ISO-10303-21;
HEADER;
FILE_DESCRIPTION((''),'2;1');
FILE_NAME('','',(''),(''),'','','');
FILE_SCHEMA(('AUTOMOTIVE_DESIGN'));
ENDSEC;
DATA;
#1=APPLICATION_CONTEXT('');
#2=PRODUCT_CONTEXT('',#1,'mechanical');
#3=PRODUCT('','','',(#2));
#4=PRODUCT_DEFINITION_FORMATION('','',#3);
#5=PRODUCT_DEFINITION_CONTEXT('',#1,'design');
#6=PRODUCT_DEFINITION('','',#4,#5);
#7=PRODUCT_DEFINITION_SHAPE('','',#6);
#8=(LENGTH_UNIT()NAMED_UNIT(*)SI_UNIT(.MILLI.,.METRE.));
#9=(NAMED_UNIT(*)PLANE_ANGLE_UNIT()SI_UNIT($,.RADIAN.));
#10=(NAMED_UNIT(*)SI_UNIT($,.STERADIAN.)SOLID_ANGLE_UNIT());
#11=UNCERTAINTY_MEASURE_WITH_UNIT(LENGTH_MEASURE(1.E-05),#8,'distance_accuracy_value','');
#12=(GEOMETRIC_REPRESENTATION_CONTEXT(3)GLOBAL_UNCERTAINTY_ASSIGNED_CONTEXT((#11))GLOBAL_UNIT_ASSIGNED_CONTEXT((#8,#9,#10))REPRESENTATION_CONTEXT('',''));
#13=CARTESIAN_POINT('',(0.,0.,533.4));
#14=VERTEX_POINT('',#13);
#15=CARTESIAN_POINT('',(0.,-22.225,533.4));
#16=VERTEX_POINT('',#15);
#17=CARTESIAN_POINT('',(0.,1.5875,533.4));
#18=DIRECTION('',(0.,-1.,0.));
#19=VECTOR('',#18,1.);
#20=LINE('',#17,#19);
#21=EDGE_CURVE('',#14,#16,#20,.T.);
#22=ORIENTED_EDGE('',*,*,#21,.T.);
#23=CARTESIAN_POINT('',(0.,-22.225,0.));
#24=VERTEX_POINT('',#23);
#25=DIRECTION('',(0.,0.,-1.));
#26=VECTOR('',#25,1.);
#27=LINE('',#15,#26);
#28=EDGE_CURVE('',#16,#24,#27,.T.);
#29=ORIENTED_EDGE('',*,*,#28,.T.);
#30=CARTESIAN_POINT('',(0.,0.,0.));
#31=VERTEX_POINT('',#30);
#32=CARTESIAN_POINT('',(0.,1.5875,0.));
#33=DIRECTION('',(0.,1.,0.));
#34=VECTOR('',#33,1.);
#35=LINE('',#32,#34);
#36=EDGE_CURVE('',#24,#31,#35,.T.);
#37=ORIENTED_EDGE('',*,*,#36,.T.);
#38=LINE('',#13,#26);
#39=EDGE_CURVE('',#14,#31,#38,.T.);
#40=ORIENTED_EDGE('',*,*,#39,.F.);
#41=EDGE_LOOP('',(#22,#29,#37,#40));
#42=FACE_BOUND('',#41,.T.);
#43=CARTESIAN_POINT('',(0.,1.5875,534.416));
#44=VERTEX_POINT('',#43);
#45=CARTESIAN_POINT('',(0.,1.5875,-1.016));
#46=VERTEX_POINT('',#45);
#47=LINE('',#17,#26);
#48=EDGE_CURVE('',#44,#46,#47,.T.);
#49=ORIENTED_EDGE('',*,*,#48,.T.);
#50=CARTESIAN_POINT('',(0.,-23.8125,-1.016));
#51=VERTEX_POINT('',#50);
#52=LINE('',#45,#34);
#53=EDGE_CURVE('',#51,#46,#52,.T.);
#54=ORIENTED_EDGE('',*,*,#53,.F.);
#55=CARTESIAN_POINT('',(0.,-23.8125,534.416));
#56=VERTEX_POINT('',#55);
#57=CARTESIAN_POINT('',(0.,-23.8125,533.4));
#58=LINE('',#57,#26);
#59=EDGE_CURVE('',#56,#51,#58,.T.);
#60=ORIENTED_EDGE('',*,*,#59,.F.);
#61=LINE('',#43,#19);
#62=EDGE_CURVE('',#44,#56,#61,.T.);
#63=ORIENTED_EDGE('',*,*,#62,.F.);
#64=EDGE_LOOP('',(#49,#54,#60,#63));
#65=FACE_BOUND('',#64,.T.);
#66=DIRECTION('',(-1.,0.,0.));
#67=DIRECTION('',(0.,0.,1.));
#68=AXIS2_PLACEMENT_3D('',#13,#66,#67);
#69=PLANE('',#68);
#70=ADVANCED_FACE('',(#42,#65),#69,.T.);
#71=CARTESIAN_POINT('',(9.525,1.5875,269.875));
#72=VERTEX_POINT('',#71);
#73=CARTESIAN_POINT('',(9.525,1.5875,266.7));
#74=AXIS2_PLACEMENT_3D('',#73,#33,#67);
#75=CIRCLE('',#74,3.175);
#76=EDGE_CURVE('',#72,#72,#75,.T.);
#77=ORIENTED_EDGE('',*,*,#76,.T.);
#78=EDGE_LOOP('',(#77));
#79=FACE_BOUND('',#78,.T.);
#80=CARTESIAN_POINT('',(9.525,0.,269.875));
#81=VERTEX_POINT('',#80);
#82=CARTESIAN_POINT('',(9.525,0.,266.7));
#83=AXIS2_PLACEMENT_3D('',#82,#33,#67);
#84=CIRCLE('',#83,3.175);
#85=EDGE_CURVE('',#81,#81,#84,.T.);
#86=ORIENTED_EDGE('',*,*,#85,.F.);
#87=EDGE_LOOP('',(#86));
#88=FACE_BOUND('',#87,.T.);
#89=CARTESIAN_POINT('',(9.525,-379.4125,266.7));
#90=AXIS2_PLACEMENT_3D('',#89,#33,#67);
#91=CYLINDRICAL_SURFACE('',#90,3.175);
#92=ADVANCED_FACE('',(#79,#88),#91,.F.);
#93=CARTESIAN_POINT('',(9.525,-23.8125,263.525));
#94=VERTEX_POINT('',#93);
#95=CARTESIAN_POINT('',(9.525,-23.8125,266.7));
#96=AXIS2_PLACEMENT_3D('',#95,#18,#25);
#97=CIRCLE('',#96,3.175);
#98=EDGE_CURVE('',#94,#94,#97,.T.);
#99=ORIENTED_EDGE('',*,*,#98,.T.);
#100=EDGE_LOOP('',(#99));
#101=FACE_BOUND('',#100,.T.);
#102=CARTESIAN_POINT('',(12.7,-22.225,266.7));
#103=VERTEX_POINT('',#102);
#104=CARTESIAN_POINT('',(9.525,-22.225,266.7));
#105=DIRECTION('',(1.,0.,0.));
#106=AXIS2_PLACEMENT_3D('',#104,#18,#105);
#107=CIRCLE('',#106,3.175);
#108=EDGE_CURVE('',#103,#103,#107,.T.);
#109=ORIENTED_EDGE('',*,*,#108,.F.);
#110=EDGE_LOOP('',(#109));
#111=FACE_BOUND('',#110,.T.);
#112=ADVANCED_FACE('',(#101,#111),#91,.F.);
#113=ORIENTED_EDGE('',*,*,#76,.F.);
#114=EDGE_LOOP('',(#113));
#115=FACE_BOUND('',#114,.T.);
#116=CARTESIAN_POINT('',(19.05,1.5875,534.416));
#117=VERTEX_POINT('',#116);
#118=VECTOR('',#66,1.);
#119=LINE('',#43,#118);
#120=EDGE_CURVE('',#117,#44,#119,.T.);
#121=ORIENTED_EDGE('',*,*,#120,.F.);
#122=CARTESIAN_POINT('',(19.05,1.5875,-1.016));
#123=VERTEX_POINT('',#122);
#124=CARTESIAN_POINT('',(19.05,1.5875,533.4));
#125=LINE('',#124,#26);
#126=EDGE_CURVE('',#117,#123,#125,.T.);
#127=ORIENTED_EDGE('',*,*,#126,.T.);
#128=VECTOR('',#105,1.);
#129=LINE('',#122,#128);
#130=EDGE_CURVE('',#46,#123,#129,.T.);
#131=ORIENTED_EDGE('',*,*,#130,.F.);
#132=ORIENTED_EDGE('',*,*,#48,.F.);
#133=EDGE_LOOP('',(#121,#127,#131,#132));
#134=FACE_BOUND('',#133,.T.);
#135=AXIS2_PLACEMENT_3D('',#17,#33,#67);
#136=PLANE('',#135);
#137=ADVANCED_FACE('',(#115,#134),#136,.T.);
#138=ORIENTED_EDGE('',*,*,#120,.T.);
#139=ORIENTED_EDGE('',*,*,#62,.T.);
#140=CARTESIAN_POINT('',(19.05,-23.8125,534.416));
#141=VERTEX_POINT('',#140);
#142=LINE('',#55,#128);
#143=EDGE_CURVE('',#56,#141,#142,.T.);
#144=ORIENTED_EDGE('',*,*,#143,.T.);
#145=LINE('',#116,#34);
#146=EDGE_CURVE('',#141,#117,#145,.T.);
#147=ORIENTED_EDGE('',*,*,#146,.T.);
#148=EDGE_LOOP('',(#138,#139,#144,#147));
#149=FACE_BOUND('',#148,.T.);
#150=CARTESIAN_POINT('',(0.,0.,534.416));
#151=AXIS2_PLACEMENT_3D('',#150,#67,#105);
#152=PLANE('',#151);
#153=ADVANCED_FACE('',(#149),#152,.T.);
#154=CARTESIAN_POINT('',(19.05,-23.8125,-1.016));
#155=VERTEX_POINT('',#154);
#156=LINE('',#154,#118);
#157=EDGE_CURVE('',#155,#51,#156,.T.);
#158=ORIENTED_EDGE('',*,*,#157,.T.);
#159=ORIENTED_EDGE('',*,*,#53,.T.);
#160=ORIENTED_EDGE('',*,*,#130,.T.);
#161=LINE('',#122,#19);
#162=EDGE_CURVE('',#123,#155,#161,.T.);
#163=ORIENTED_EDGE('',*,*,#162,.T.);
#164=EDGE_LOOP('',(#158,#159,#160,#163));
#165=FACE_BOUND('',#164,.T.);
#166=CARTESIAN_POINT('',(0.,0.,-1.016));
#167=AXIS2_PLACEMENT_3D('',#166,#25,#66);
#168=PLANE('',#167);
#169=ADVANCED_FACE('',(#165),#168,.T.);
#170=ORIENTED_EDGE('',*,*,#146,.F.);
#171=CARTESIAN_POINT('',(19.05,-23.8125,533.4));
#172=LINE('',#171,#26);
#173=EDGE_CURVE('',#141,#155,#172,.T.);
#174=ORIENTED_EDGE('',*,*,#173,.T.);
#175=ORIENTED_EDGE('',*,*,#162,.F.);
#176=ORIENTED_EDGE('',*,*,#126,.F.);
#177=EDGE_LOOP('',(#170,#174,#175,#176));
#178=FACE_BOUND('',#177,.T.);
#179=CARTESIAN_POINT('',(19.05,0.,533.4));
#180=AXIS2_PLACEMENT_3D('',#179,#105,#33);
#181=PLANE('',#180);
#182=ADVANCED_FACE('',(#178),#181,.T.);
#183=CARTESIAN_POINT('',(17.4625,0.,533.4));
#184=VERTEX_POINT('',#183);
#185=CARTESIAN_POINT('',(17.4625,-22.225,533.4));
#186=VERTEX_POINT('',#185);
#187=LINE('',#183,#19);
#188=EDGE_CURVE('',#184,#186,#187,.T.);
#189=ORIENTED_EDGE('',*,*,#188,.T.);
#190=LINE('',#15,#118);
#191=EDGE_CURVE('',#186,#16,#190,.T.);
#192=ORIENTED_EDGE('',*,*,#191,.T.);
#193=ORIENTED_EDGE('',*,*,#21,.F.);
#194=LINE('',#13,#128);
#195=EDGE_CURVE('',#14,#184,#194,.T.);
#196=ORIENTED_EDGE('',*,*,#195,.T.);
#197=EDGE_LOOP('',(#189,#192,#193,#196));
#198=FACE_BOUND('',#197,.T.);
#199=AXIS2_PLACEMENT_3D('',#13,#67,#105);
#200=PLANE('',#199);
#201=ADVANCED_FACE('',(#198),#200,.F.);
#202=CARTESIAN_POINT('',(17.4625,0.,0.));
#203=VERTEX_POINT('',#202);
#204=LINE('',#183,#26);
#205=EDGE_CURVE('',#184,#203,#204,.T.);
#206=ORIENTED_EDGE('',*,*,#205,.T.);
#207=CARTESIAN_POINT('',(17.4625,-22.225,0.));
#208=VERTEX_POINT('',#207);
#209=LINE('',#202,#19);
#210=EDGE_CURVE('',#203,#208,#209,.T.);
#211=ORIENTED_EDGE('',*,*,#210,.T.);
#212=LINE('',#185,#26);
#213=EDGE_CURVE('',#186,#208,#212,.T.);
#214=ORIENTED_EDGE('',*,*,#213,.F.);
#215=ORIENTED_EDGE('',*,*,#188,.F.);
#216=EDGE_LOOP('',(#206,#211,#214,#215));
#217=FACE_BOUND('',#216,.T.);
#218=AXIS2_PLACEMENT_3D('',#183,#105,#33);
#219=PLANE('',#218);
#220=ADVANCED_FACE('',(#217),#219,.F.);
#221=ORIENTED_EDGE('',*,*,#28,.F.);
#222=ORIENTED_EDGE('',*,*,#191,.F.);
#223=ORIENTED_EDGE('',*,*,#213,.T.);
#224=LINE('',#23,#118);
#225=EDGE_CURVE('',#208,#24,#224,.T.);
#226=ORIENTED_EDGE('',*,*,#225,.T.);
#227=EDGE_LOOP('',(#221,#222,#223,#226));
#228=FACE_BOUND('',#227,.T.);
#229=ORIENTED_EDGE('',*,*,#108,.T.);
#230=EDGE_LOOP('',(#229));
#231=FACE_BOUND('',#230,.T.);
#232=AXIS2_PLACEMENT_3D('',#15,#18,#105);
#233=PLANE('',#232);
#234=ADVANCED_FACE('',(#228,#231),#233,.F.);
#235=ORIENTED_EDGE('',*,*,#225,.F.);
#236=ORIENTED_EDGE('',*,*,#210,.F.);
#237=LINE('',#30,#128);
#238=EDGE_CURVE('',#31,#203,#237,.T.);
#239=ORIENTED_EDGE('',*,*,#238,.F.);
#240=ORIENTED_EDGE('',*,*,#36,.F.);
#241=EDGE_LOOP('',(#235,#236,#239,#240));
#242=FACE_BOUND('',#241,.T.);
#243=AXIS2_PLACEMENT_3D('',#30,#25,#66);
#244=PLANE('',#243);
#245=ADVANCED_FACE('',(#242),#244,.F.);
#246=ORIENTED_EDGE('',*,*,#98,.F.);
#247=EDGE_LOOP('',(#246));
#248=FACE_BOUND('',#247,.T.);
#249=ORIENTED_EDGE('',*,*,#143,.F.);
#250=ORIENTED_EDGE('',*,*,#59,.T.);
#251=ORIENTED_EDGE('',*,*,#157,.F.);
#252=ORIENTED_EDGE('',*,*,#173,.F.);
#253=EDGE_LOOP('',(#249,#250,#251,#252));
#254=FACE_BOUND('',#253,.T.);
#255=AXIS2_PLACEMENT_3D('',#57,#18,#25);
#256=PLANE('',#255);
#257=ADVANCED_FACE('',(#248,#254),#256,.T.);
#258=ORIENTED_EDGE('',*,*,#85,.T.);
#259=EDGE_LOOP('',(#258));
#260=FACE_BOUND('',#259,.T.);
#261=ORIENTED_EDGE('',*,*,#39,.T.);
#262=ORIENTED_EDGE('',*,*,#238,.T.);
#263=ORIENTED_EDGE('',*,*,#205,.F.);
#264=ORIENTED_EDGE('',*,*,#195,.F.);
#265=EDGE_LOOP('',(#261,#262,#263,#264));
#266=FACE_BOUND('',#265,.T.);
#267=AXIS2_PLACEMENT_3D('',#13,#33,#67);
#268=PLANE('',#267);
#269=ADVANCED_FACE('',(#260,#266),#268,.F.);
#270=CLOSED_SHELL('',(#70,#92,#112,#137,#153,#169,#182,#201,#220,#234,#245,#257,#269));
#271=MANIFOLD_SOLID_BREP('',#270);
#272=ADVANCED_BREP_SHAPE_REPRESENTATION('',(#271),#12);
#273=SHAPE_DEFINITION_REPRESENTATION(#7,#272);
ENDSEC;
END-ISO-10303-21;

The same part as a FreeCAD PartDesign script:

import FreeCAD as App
import Part
import Sketcher
from FreeCAD import Vector
Q = App.Units.Quantity

doc = App.newDocument("Part")
body = doc.addObject("PartDesign::Body", "Body")

# Sketch on XY plane
sketch1 = body.newObject("Sketcher::SketchObject", "Sketch")
sketch1.AttachmentSupport = (doc.getObject("XY_Plane"), [""])
sketch1.MapMode = "FlatFace"
sketch1.addGeometry([
    Part.LineSegment(Vector(0, 0, 0), Vector(17.5, 0, 0)),  # 0
    Part.LineSegment(Vector(17.5, 0, 0), Vector(17.5, -22.2, 0)),  # 1
    Part.LineSegment(Vector(17.5, -22.2, 0), Vector(0, -22.2, 0)),  # 2
    Part.LineSegment(Vector(0, -22.2, 0), Vector(0, -23.8, 0)),  # 3
    Part.LineSegment(Vector(0, -23.8, 0), Vector(19.1, -23.8, 0)),  # 4
    Part.LineSegment(Vector(19.1, -23.8, 0), Vector(19.1, 1.6, 0)),  # 5
    Part.LineSegment(Vector(19.1, 1.6, 0), Vector(0, 1.6, 0)),  # 6
    Part.LineSegment(Vector(0, 1.6, 0), Vector(0, 0, 0)),  # 7
], False)
sketch1.addConstraint([
    Sketcher.Constraint("Coincident", 0, 2, 1, 1),
    Sketcher.Constraint("Coincident", 1, 2, 2, 1),
    Sketcher.Constraint("Coincident", 2, 2, 3, 1),
    Sketcher.Constraint("Coincident", 3, 2, 4, 1),
    Sketcher.Constraint("Coincident", 4, 2, 5, 1),
    Sketcher.Constraint("Coincident", 5, 2, 6, 1),
    Sketcher.Constraint("Coincident", 6, 2, 7, 1),
    Sketcher.Constraint("Coincident", 7, 2, 0, 1),
    Sketcher.Constraint("Horizontal", 0),
    Sketcher.Constraint("Vertical", 1),
    Sketcher.Constraint("Horizontal", 2),
    Sketcher.Constraint("Vertical", 3),
    Sketcher.Constraint("Horizontal", 4),
    Sketcher.Constraint("Vertical", 5),
    Sketcher.Constraint("Horizontal", 6),
    Sketcher.Constraint("Vertical", 7),
    Sketcher.Constraint("Coincident", 7, 2, -1, 1),
    Sketcher.Constraint("PointOnObject", 2, 2, -2),
    Sketcher.Constraint("Equal", 3, 7),
    Sketcher.Constraint("DistanceY", 5, 1, 5, 2, Q("1 in")),
    Sketcher.Constraint("DistanceX", 4, 1, 4, 2, Q("0.75 in")),
    Sketcher.Constraint("DistanceX", 0, 1, 0, 2, Q("0.6875 in")),
    Sketcher.Constraint("DistanceY", 1, 2, 1, 1, Q("0.875 in")),
])
pad1 = body.newObject("PartDesign::Pad", "Pad")
pad1.Profile = sketch1
pad1.Length = Q("21 in")

# Sketch on XZ plane
sketch2 = body.newObject("Sketcher::SketchObject", "Sketch001")
sketch2.AttachmentSupport = (doc.getObject("XZ_Plane"), [""])
sketch2.MapMode = "FlatFace"
sketch2.AttachmentOffset = App.Placement(Vector(0, 0, -0.0625 * 25.4), App.Rotation())
sketch2.addGeometry(Part.Circle(Vector(9.5, 266.7, 0), Vector(0, 0, 1), 3.2), False)
sketch2.addConstraint([
    Sketcher.Constraint("Diameter", 0, Q("0.25 in")),
    Sketcher.Constraint("DistanceY", -1, 1, 0, 3, Q("10.5 in")),
    Sketcher.Constraint("DistanceX", -1, 1, 0, 3, Q("0.375 in")),
])
pocket1 = body.newObject("PartDesign::Pocket", "Pocket")
pocket1.Profile = sketch2
pocket1.Length = Q("15 in")
pocket1.Reversed = True

# Sketch on XY plane
sketch3 = body.newObject("Sketcher::SketchObject", "Sketch002")
sketch3.AttachmentSupport = (doc.getObject("XY_Plane"), [""])
sketch3.MapMode = "FlatFace"
sketch3.addGeometry([
    Part.LineSegment(Vector(19, 2, 0), Vector(19, -24, 0)),
    Part.LineSegment(Vector(19, -24, 0), Vector(0, -24, 0)),
    Part.LineSegment(Vector(0, -24, 0), Vector(0, 2, 0)),
    Part.LineSegment(Vector(0, 2, 0), Vector(19, 2, 0)),
], False)
sketch3.addConstraint([
    Sketcher.Constraint("Coincident", 0, 2, 1, 1),
    Sketcher.Constraint("Coincident", 1, 2, 2, 1),
    Sketcher.Constraint("Coincident", 2, 2, 3, 1),
    Sketcher.Constraint("Coincident", 3, 2, 0, 1),
    Sketcher.Constraint("Vertical", 0),
    Sketcher.Constraint("Horizontal", 1),
    Sketcher.Constraint("Vertical", 2),
    Sketcher.Constraint("Horizontal", 3),
    Sketcher.Constraint("PointOnObject", 1, 2, -2),
    Sketcher.Constraint("DistanceY", 0, 2, 0, 1, Q("1 in")),
    Sketcher.Constraint("DistanceX", 1, 2, 1, 1, Q("0.75 in")),
    Sketcher.Constraint("DistanceY", 0, 2, -1, 1, Q("0.9375 in")),
])
pad2 = body.newObject("PartDesign::Pad", "Pad001")
pad2.Profile = sketch3
pad2.Length = Q("0.04 in")
pad2.Reversed = True

# Sketch on XY plane
sketch4 = body.newObject("Sketcher::SketchObject", "Sketch003")
sketch4.AttachmentSupport = (doc.getObject("XY_Plane"), [""])
sketch4.MapMode = "FlatFace"
sketch4.AttachmentOffset = App.Placement(Vector(0, 0, 21 * 25.4), App.Rotation())
sketch4.addGeometry([
    Part.LineSegment(Vector(0, 2, 0), Vector(0, -24, 0)),
    Part.LineSegment(Vector(0, -24, 0), Vector(19, -24, 0)),
    Part.LineSegment(Vector(19, -24, 0), Vector(19, 2, 0)),
    Part.LineSegment(Vector(19, 2, 0), Vector(0, 2, 0)),
], False)
sketch4.addConstraint([
    Sketcher.Constraint("Coincident", 0, 2, 1, 1),
    Sketcher.Constraint("Coincident", 1, 2, 2, 1),
    Sketcher.Constraint("Coincident", 2, 2, 3, 1),
    Sketcher.Constraint("Coincident", 3, 2, 0, 1),
    Sketcher.Constraint("Vertical", 0),
    Sketcher.Constraint("Horizontal", 1),
    Sketcher.Constraint("Vertical", 2),
    Sketcher.Constraint("Horizontal", 3),
    Sketcher.Constraint("PointOnObject", 0, 2, -2),
    Sketcher.Constraint("DistanceY", 0, 2, 0, 1, Q("1 in")),
    Sketcher.Constraint("DistanceX", 1, 1, 1, 2, Q("0.75 in")),
    Sketcher.Constraint("DistanceY", 0, 2, -1, 1, Q("0.9375 in")),
])
pad3 = body.newObject("PartDesign::Pad", "Pad002")
pad3.Profile = sketch4
pad3.Length = Q("0.04 in")

doc.recompute()
